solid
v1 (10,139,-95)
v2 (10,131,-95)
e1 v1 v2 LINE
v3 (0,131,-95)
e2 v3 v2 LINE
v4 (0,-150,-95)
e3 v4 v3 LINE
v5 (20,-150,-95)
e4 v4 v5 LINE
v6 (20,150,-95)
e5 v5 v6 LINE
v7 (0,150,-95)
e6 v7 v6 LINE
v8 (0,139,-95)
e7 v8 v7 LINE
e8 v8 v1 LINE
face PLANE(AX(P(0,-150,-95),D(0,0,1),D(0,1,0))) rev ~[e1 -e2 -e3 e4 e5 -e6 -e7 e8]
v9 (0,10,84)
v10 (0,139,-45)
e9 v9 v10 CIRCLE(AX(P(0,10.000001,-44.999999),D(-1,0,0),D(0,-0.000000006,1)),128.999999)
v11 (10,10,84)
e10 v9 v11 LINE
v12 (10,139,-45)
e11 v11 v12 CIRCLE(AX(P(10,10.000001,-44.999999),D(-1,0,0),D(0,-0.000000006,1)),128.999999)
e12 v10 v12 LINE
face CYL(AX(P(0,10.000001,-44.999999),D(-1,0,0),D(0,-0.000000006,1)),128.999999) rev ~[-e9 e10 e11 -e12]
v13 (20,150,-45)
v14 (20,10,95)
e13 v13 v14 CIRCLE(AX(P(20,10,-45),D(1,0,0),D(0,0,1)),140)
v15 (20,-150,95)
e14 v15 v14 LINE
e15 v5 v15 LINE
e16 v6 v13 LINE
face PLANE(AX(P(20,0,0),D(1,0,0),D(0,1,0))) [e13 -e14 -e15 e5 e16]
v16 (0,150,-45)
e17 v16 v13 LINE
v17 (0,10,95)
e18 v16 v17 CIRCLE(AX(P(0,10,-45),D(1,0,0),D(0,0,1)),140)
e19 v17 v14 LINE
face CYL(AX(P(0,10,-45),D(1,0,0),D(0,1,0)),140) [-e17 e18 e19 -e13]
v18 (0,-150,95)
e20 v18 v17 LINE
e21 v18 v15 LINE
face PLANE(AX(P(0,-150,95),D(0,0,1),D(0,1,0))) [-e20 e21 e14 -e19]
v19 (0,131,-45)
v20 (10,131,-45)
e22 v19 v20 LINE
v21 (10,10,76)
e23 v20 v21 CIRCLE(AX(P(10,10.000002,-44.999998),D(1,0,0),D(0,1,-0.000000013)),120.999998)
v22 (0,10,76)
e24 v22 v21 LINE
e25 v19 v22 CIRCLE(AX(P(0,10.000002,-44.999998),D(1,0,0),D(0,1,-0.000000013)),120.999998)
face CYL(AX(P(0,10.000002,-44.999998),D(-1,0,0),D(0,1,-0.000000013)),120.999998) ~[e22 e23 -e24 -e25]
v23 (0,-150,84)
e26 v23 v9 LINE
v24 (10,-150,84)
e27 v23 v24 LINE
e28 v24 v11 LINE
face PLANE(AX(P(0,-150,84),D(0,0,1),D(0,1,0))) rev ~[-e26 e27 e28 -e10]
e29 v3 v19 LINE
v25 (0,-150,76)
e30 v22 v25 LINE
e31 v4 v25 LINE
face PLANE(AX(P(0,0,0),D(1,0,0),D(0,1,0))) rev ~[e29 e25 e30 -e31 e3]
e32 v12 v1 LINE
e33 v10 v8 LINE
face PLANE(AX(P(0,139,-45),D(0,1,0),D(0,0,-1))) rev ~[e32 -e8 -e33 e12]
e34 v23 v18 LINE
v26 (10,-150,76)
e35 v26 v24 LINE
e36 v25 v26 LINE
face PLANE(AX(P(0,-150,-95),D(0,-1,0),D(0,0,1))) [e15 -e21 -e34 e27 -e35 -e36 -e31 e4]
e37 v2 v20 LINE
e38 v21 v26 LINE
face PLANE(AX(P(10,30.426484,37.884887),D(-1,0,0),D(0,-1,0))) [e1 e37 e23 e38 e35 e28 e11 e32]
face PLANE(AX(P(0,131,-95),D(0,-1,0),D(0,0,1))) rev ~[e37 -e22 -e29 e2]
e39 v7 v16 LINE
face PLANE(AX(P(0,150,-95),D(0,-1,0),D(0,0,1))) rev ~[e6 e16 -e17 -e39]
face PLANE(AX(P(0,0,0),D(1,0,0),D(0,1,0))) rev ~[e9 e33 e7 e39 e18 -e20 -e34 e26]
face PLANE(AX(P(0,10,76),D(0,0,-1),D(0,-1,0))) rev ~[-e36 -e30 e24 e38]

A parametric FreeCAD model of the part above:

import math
import FreeCAD as App
import Part
import Sketcher
Q = App.Units.Quantity


def edges_at(feature, points):
    """Names of the edges that pass closest to the given points."""
    edges = feature.Shape.Edges
    near = lambda p: min(range(len(edges)), key=lambda i: edges[i].distToShape(Part.Vertex(*p))[0])
    return sorted({f"Edge{near(p) + 1}" for p in points})

doc = App.newDocument("Part")
body = doc.addObject("PartDesign::Body", "Body")

sketch1 = body.newObject("Sketcher::SketchObject", "Sketch")
sketch1.AttachmentSupport = (doc.getObject("YZ_Plane"), [""])
sketch1.MapMode = "FlatFace"
sketch1.addGeometry(Part.LineSegment(App.Vector(-150, 95, 0), App.Vector(-150, -95, 0)), False)
sketch1.addGeometry(Part.LineSegment(App.Vector(-150, -95, 0), App.Vector(150, -95, 0)), False)
sketch1.addGeometry(Part.LineSegment(App.Vector(150, -95, 0), App.Vector(150, 95, 0)), False)
sketch1.addGeometry(Part.LineSegment(App.Vector(150, 95, 0), App.Vector(-150, 95, 0)), False)
sketch1.addConstraint(Sketcher.Constraint("Coincident", 0, 2, 1, 1))
sketch1.addConstraint(Sketcher.Constraint("Coincident", 1, 2, 2, 1))
sketch1.addConstraint(Sketcher.Constraint("Coincident", 2, 2, 3, 1))
sketch1.addConstraint(Sketcher.Constraint("Coincident", 3, 2, 0, 1))
sketch1.addConstraint(Sketcher.Constraint("Vertical", 0))
sketch1.addConstraint(Sketcher.Constraint("Horizontal", 1))
sketch1.addConstraint(Sketcher.Constraint("Vertical", 2))
sketch1.addConstraint(Sketcher.Constraint("Horizontal", 3))
sketch1.addConstraint(Sketcher.Constraint("Symmetric", 0, 2, 2, 2, -1, 1))
sketch1.addConstraint(Sketcher.Constraint("DistanceX", 1, 1, 1, 2, Q("300 mm")))
sketch1.addConstraint(Sketcher.Constraint("DistanceY", 0, 2, 0, 1, Q("190 mm")))
pad1 = body.newObject("PartDesign::Pad", "Pad")
pad1.Profile = sketch1
pad1.Length = 20
doc.recompute()

fillet = body.newObject("PartDesign::Fillet", "Fillet")
fillet.Base = (pad1, edges_at(pad1, [(10, 150, 95)]))
fillet.Radius = 140

sketch2 = body.newObject("Sketcher::SketchObject", "Sketch001")
sketch2.AttachmentSupport = (doc.getObject("YZ_Plane"), [""])
sketch2.MapMode = "FlatFace"
sketch2.addGeometry(Part.LineSegment(App.Vector(139, -45, 0), App.Vector(139, -95, 0)), False)
sketch2.addGeometry(Part.LineSegment(App.Vector(139, -95, 0), App.Vector(131, -95, 0)), False)
sketch2.addGeometry(Part.LineSegment(App.Vector(131, -95, 0), App.Vector(131, -45, 0)), False)
sketch2.addGeometry(Part.ArcOfCircle(Part.Circle(App.Vector(10, -45, 0), App.Vector(0, 0, 1), 121), math.radians(0), math.radians(90)), False)
sketch2.addGeometry(Part.LineSegment(App.Vector(10, 76, 0), App.Vector(-150, 76, 0)), False)
sketch2.addGeometry(Part.LineSegment(App.Vector(-150, 76, 0), App.Vector(-150, 84, 0)), False)
sketch2.addGeometry(Part.LineSegment(App.Vector(-150, 84, 0), App.Vector(10, 84, 0)), False)
sketch2.addGeometry(Part.ArcOfCircle(Part.Circle(App.Vector(10, -45, 0), App.Vector(0, 0, 1), 129), math.radians(0), math.radians(90)), False)
sketch2.addConstraint(Sketcher.Constraint("Coincident", 0, 2, 1, 1))
sketch2.addConstraint(Sketcher.Constraint("Coincident", 1, 2, 2, 1))
sketch2.addConstraint(Sketcher.Constraint("Tangent", 2, 2, 3, 1))
sketch2.addConstraint(Sketcher.Constraint("Tangent", 3, 2, 4, 1))
sketch2.addConstraint(Sketcher.Constraint("Coincident", 4, 2, 5, 1))
sketch2.addConstraint(Sketcher.Constraint("Coincident", 5, 2, 6, 1))
sketch2.addConstraint(Sketcher.Constraint("Tangent", 6, 2, 7, 2))
sketch2.addConstraint(Sketcher.Constraint("Tangent", 7, 1, 0, 1))
sketch2.addConstraint(Sketcher.Constraint("Vertical", 0))
sketch2.addConstraint(Sketcher.Constraint("Horizontal", 1))
sketch2.addConstraint(Sketcher.Constraint("Vertical", 2))
sketch2.addConstraint(Sketcher.Constraint("Horizontal", 4))
sketch2.addConstraint(Sketcher.Constraint("Vertical", 5))
sketch2.addConstraint(Sketcher.Constraint("Horizontal", 6))
sketch2.addConstraint(Sketcher.Constraint("Coincident", 7, 3, 3, 3))
sketch2.addConstraint(Sketcher.Constraint("Radius", 3, Q("120.999998 mm")))
sketch2.addConstraint(Sketcher.Constraint("Radius", 7, Q("128.999999 mm")))
sketch2.addConstraint(Sketcher.Constraint("DistanceX", 4, 2, 4, 1, Q("160 mm")))
sketch2.addConstraint(Sketcher.Constraint("DistanceY", 0, 2, 0, 1, Q("50 mm")))
sketch2.addConstraint(Sketcher.Constraint("DistanceX", -1, 1, 3, 3, Q("10.000002 mm")))
sketch2.addConstraint(Sketcher.Constraint("DistanceY", 3, 3, -1, 1, Q("44.999998 mm")))
pocket1 = body.newObject("PartDesign::Pocket", "Pocket")
pocket1.Profile = sketch2
pocket1.Length = 10
pocket1.Reversed = True

doc.recompute()
